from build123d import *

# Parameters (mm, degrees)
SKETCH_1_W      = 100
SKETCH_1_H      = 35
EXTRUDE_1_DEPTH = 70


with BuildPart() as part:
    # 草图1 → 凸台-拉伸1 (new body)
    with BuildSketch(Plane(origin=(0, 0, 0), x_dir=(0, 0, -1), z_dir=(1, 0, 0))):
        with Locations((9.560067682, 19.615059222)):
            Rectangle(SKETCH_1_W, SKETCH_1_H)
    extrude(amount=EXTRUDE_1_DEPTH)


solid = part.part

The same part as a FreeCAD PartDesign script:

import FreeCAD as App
import Part
import Sketcher

V = App.Vector

doc = App.newDocument("Part")
body = doc.addObject("PartDesign::Body", "Body")

sketch1 = body.newObject("Sketcher::SketchObject", "Sketch")
sketch1.AttachmentSupport = (doc.getObject("YZ_Plane"), [""])
sketch1.MapMode = "FlatFace"
sketch1.addGeometry([
    Part.LineSegment(V(37, 40, 0), V(2, 40, 0)),
    Part.LineSegment(V(2, 40, 0), V(2, -60, 0)),
    Part.LineSegment(V(2, -60, 0), V(37, -60, 0)),
    Part.LineSegment(V(37, -60, 0), V(37, 40, 0)),
], False)
sketch1.addConstraint([
    Sketcher.Constraint("Coincident", 0, 2, 1, 1),
    Sketcher.Constraint("Coincident", 1, 2, 2, 1),
    Sketcher.Constraint("Coincident", 2, 2, 3, 1),
    Sketcher.Constraint("Coincident", 3, 2, 0, 1),
    Sketcher.Constraint("Horizontal", 0),
    Sketcher.Constraint("Vertical", 1),
    Sketcher.Constraint("Horizontal", 2),
    Sketcher.Constraint("Vertical", 3),
    Sketcher.Constraint("DistanceX", 0, 2, 0, 1, 35.0),
    Sketcher.Constraint("DistanceY", 1, 2, 1, 1, 100.0),
    Sketcher.Constraint("DistanceX", -1, 1, 0, 2, 2.115059),
    Sketcher.Constraint("DistanceY", -1, 1, 0, 2, 40.439932),
])
pad1 = body.newObject("PartDesign::Pad", "Pad")
pad1.Profile = sketch1
pad1.Length = 70

doc.recompute()
